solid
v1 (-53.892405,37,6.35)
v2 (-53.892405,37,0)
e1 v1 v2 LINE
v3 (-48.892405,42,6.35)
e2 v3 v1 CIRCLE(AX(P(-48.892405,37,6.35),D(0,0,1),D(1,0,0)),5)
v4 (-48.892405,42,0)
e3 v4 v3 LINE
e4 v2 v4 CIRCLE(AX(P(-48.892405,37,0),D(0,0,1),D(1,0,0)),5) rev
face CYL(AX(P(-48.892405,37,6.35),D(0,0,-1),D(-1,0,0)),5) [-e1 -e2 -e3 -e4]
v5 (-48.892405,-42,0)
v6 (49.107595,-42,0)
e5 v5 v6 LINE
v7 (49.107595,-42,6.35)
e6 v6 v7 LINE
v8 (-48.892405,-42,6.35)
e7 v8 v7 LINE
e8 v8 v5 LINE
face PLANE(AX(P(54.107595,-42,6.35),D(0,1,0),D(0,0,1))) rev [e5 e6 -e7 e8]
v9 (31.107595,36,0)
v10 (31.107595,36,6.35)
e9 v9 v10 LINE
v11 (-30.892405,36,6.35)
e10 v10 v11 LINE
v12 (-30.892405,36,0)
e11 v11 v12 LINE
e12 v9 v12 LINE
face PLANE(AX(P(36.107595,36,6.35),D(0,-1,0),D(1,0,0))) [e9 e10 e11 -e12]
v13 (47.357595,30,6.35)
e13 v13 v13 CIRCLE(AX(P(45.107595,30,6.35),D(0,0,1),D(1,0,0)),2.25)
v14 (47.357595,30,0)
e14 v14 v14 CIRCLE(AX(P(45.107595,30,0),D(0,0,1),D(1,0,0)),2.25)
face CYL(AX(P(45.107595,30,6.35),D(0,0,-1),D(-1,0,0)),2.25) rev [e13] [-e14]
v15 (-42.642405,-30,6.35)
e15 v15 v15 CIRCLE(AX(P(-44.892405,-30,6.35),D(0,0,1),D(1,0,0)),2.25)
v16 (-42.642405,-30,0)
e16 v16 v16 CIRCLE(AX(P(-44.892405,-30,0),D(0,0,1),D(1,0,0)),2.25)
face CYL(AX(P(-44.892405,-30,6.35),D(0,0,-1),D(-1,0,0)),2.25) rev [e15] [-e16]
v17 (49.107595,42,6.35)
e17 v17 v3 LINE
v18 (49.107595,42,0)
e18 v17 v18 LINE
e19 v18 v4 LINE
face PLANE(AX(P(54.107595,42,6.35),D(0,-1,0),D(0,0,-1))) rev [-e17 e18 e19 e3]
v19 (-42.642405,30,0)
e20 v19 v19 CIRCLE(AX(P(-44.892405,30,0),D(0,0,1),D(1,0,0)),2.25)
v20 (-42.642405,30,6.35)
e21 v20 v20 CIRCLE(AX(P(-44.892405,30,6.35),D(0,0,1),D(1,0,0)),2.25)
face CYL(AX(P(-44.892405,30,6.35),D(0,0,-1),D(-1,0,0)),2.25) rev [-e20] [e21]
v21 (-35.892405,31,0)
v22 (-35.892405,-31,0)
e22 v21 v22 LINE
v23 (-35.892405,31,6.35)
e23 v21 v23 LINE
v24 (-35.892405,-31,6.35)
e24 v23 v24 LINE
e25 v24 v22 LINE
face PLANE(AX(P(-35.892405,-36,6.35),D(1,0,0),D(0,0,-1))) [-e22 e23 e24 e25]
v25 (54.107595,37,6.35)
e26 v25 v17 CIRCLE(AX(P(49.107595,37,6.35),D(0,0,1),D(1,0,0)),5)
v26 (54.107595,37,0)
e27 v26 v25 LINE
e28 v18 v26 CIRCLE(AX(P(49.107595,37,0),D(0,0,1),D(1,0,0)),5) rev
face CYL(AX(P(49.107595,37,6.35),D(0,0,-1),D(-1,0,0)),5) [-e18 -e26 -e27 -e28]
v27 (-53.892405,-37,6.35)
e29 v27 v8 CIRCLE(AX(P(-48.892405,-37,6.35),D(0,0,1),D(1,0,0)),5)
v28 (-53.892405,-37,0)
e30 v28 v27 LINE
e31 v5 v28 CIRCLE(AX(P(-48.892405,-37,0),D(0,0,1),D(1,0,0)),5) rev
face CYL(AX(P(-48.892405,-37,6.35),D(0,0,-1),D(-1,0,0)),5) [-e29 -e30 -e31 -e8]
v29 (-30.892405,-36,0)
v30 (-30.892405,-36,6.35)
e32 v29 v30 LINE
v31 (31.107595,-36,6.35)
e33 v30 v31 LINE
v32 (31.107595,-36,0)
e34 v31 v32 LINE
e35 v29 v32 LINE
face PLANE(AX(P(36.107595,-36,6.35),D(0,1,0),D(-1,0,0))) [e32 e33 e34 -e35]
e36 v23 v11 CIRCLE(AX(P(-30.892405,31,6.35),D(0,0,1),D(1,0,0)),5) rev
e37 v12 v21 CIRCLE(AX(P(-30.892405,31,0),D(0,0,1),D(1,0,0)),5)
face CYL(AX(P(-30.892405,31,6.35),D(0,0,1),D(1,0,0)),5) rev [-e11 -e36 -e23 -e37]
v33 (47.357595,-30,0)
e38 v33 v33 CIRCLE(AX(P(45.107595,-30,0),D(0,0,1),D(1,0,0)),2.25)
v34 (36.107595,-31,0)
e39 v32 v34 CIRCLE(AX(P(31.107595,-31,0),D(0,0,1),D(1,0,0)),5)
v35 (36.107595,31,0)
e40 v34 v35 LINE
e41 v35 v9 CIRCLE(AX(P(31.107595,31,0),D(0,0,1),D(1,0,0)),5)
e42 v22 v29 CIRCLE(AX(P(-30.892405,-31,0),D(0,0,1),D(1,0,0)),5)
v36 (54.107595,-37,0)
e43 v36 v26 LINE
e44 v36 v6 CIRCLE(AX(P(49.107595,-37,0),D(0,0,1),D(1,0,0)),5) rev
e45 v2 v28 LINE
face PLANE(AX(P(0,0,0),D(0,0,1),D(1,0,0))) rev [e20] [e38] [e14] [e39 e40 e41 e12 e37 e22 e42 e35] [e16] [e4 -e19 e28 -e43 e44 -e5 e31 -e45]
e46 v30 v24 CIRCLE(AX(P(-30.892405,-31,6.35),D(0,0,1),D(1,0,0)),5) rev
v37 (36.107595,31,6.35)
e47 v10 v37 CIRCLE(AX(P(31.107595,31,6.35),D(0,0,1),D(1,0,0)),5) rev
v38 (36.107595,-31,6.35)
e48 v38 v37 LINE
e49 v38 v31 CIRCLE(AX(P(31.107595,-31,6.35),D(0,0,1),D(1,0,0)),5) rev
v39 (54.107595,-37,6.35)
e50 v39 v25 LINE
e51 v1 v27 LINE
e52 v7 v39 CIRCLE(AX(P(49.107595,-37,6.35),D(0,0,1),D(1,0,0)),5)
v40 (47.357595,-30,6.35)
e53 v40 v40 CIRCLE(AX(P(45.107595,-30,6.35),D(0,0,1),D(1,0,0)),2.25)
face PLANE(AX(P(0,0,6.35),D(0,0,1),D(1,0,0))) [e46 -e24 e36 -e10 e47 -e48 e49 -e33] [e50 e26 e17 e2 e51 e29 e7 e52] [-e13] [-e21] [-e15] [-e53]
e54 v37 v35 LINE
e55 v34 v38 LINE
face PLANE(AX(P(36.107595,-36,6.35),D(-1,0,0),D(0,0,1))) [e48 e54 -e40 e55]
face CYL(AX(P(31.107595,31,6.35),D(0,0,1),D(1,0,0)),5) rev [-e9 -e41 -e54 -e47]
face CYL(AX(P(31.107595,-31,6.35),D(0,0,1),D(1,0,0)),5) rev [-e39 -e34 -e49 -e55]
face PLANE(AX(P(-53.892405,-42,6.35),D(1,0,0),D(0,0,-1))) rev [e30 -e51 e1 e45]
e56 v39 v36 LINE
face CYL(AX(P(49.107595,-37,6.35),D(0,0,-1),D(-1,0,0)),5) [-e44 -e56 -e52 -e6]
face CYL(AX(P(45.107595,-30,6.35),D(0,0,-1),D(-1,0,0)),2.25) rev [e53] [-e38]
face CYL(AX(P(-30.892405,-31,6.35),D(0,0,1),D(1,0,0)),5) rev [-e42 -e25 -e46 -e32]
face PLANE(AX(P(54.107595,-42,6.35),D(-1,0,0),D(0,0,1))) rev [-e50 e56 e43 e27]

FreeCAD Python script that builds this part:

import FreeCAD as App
import Part
import Sketcher

V = App.Vector


def edges_at(feature, points):
    """Names of the edges that pass closest to the given points."""
    edges = feature.Shape.Edges
    near = lambda p: min(range(len(edges)), key=lambda i: edges[i].distToShape(Part.Vertex(*p))[0])
    return sorted({f"Edge{near(p) + 1}" for p in points})

doc = App.newDocument("Part")
body = doc.addObject("PartDesign::Body", "Body")

sketch1 = doc.addObject("Sketcher::SketchObject", "Sketch")
body.addObject(sketch1)
sketch1.AttachmentSupport = (doc.XY_Plane, [""])
sketch1.MapMode = "FlatFace"
sketch1.addGeometry([
    Part.LineSegment(V(-53.9, 42, 0), V(-53.9, -42, 0)),
    Part.LineSegment(V(-53.9, -42, 0), V(54.1, -42, 0)),
    Part.LineSegment(V(54.1, -42, 0), V(54.1, 42, 0)),
    Part.LineSegment(V(54.1, 42, 0), V(-53.9, 42, 0)),
    Part.Circle(V(-44.9, -30, 0), V(0, 0, 1), 2.2),
    Part.Circle(V(45.1, -30, 0), V(0, 0, 1), 2.2),
    Part.Circle(V(-44.9, 30, 0), V(0, 0, 1), 2.2),
    Part.LineSegment(V(36.1, -36, 0), V(-35.9, -36, 0)),
    Part.LineSegment(V(-35.9, -36, 0), V(-35.9, 36, 0)),
    Part.LineSegment(V(-35.9, 36, 0), V(36.1, 36, 0)),
    Part.LineSegment(V(36.1, 36, 0), V(36.1, -36, 0)),
    Part.Circle(V(45.1, 30, 0), V(0, 0, 1), 2.2),
], False)
sketch1.addConstraint([
    Sketcher.Constraint("Coincident", 0, 2, 1, 1),
    Sketcher.Constraint("Coincident", 1, 2, 2, 1),
    Sketcher.Constraint("Coincident", 2, 2, 3, 1),
    Sketcher.Constraint("Coincident", 3, 2, 0, 1),
    Sketcher.Constraint("Coincident", 7, 2, 8, 1),
    Sketcher.Constraint("Coincident", 8, 2, 9, 1),
    Sketcher.Constraint("Coincident", 9, 2, 10, 1),
    Sketcher.Constraint("Coincident", 10, 2, 7, 1),
    Sketcher.Constraint("Vertical", 0),
    Sketcher.Constraint("Horizontal", 1),
    Sketcher.Constraint("Vertical", 2),
    Sketcher.Constraint("Horizontal", 3),
    Sketcher.Constraint("Horizontal", 7),
    Sketcher.Constraint("Vertical", 8),
    Sketcher.Constraint("Horizontal", 9),
    Sketcher.Constraint("Vertical", 10),
    Sketcher.Constraint("Equal", 4, 5),
    Sketcher.Constraint("Equal", 5, 6),
    Sketcher.Constraint("Equal", 6, 11),
    Sketcher.Constraint("Symmetric", 4, 3, 6, 3, -1),
    Sketcher.Constraint("Symmetric", 5, 3, 11, 3, -1),
    Sketcher.Constraint("Horizontal", 4, 3, 5, 3),
    Sketcher.Constraint("Equal", 9, 8),
    Sketcher.Constraint("Diameter", 4, 4.5),
    Sketcher.Constraint("DistanceX", 1, 1, 1, 2, 108.0),
    Sketcher.Constraint("DistanceX", 7, 2, 7, 1, 72.0),
    Sketcher.Constraint("DistanceY", 0, 2, 0, 1, 84.0),
    Sketcher.Constraint("DistanceY", 4, 3, -1, 1, 30.0),
    Sketcher.Constraint("DistanceY", 0, 2, -1, 1, 42.0),
    Sketcher.Constraint("DistanceY", 7, 2, -1, 1, 36.0),
    Sketcher.Constraint("DistanceX", 4, 3, 5, 3, 90.0),
    Sketcher.Constraint("DistanceX", 0, 2, 4, 3, 9.0),
    Sketcher.Constraint("DistanceX", 4, 3, 7, 2, 9.0),
    Sketcher.Constraint("DistanceX", 4, 3, -1, 1, 44.892405),
])
pad1 = doc.addObject("PartDesign::Pad", "Pad")
body.addObject(pad1)
pad1.Profile = sketch1
pad1.Length = 6.35
doc.recompute()

fillet = doc.addObject("PartDesign::Fillet", "Fillet")
body.addObject(fillet)
fillet.Base = (pad1, edges_at(pad1, [
    (-35.892, 36, 3.175),
    (-35.892, -36, 3.175),
    (36.108, -36, 3.175),
    (36.108, 36, 3.175),
    (-53.892, 42, 3.175),
    (54.108, 42, 3.175),
    (54.108, -42, 3.175),
    (-53.892, -42, 3.175),
]))
fillet.Radius = 5

doc.recompute()
